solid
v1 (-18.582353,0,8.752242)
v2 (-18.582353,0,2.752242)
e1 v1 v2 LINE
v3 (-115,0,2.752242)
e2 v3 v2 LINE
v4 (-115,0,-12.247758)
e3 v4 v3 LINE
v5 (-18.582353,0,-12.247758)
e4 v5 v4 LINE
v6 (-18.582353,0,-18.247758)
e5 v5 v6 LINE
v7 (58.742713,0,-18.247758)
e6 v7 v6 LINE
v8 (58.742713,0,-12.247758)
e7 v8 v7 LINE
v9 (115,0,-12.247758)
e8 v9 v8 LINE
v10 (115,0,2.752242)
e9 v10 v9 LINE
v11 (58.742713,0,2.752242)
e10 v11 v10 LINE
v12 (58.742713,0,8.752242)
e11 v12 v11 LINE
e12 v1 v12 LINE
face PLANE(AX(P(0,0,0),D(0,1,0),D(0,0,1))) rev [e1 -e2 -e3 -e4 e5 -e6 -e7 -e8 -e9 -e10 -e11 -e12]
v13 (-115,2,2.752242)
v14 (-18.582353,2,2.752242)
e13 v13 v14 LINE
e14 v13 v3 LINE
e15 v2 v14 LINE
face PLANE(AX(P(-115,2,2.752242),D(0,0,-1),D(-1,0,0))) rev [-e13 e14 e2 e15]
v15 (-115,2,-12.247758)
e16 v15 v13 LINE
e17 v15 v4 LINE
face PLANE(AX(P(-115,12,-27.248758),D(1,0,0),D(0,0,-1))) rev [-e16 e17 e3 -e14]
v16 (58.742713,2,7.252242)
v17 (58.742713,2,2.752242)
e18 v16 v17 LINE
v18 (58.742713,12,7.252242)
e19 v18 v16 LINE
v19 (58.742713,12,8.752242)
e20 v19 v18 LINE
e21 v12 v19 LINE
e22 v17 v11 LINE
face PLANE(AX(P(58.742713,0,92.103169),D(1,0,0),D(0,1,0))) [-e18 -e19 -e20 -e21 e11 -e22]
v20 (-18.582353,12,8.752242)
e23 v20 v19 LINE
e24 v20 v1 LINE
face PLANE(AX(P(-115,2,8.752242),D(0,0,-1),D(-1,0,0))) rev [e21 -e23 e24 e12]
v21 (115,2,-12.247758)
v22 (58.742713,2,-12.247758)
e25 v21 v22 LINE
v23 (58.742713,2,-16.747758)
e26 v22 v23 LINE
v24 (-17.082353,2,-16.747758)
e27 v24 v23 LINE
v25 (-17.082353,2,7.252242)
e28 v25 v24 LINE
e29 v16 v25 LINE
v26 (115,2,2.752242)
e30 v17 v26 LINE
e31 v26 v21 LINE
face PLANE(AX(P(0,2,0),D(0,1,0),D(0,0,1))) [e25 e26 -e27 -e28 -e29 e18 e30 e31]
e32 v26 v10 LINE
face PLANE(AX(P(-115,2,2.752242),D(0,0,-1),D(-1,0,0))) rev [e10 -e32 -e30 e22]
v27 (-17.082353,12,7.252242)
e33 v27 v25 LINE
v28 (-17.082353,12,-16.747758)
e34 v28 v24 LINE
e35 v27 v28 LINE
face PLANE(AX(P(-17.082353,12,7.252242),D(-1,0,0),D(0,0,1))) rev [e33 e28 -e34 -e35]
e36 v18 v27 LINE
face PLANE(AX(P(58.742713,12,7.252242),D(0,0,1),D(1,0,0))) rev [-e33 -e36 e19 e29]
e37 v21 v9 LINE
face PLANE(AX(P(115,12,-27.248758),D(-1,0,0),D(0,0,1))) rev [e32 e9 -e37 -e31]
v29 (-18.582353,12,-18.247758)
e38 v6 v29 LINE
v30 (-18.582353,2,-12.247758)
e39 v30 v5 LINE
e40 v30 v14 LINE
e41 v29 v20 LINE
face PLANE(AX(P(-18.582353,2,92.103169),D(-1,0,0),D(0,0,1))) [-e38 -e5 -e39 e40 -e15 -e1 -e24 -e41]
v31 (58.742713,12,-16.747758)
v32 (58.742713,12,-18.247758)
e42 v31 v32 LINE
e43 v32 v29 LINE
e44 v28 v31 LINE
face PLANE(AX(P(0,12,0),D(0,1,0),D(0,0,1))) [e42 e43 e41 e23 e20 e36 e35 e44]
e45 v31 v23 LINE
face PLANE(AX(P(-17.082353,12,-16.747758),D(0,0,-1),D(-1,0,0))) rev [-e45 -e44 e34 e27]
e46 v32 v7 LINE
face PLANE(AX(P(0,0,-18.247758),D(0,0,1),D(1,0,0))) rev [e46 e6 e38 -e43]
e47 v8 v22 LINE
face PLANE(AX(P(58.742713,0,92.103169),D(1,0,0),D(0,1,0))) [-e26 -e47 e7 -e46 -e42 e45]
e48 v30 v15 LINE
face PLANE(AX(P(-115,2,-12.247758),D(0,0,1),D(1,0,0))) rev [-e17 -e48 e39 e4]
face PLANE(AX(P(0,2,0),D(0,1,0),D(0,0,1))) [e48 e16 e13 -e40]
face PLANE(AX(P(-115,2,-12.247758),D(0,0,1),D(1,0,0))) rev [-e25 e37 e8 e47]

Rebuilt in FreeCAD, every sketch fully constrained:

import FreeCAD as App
import Part
import Sketcher

V = App.Vector
Q = App.Units.Quantity

doc = App.newDocument("Part")
body = doc.addObject("PartDesign::Body", "Body")

# Sketch on XZ plane
sketch1 = body.newObject("Sketcher::SketchObject", "Sketch")
sketch1.AttachmentSupport = (doc.getObject("XZ_Plane"), [""])
sketch1.MapMode = "FlatFace"
sketch1.addGeometry([
    Part.LineSegment(V(-115, -12.247758, 0), V(-115, 2.752242, 0)),
    Part.LineSegment(V(-115, 2.752242, 0), V(115, 2.752242, 0)),
    Part.LineSegment(V(115, 2.752242, 0), V(115, -12.247758, 0)),
    Part.LineSegment(V(115, -12.247758, 0), V(-115, -12.247758, 0)),
], False)
sketch1.addConstraint([
    Sketcher.Constraint("Coincident", 0, 2, 1, 1),
    Sketcher.Constraint("Coincident", 1, 2, 2, 1),
    Sketcher.Constraint("Coincident", 2, 2, 3, 1),
    Sketcher.Constraint("Coincident", 3, 2, 0, 1),
    Sketcher.Constraint("Vertical", 0),
    Sketcher.Constraint("Horizontal", 1),
    Sketcher.Constraint("Vertical", 2),
    Sketcher.Constraint("Horizontal", 3),
    Sketcher.Constraint("DistanceX", 1, 1, 1, 2, Q("230 mm")),
    Sketcher.Constraint("DistanceY", 0, 1, 0, 2, Q("15 mm")),
    Sketcher.Constraint("DistanceX", 0, 2, -1, 1, Q("115 mm")),
    Sketcher.Constraint("DistanceY", -1, 1, 0, 2, Q("2.752242 mm")),
])
pad1 = body.newObject("PartDesign::Pad", "Pad")
pad1.Profile = sketch1
pad1.Length = 2
pad1.Reversed = True

# Sketch on YZ plane
sketch2 = body.newObject("Sketcher::SketchObject", "Sketch001")
sketch2.AttachmentSupport = (doc.getObject("YZ_Plane"), [""])
sketch2.MapMode = "FlatFace"
sketch2.AttachmentOffset = App.Placement(V(0, 0, 115), App.Rotation())
sketch2.addGeometry([
    Part.LineSegment(V(12, 17.752242, 0), V(-10, 17.752242, 0)),
    Part.LineSegment(V(-10, 17.752242, 0), V(-10, -27.247758, 0)),
    Part.LineSegment(V(-10, -27.247758, 0), V(12, -27.247758, 0)),
    Part.LineSegment(V(12, -27.247758, 0), V(12, 17.752242, 0)),
], False)
sketch2.addConstraint([
    Sketcher.Constraint("Coincident", 0, 2, 1, 1),
    Sketcher.Constraint("Coincident", 1, 2, 2, 1),
    Sketcher.Constraint("Coincident", 2, 2, 3, 1),
    Sketcher.Constraint("Coincident", 3, 2, 0, 1),
    Sketcher.Constraint("Horizontal", 0),
    Sketcher.Constraint("Vertical", 1),
    Sketcher.Constraint("Horizontal", 2),
    Sketcher.Constraint("Vertical", 3),
    Sketcher.Constraint("DistanceX", 0, 2, 0, 1, Q("22 mm")),
    Sketcher.Constraint("DistanceY", 1, 2, 1, 1, Q("45 mm")),
    Sketcher.Constraint("DistanceX", 0, 2, -1, 1, Q("10 mm")),
    Sketcher.Constraint("DistanceY", -1, 1, 0, 2, Q("17.752242 mm")),
])
pad2 = body.newObject("PartDesign::Pad", "Pad001")
pad2.Profile = sketch2
pad2.Length = 5

# Sketch on YZ plane
sketch3 = body.newObject("Sketcher::SketchObject", "Sketch002")
sketch3.AttachmentSupport = (doc.getObject("YZ_Plane"), [""])
sketch3.MapMode = "FlatFace"
sketch3.AttachmentOffset = App.Placement(V(0, 0, -115), App.Rotation())
sketch3.addGeometry([
    Part.LineSegment(V(12, -27.247758, 0), V(-10, -27.247758, 0)),
    Part.LineSegment(V(-10, -27.247758, 0), V(-10, 17.752242, 0)),
    Part.LineSegment(V(-10, 17.752242, 0), V(12, 17.752242, 0)),
    Part.LineSegment(V(12, 17.752242, 0), V(12, -27.247758, 0)),
], False)
sketch3.addConstraint([
    Sketcher.Constraint("Coincident", 0, 2, 1, 1),
    Sketcher.Constraint("Coincident", 1, 2, 2, 1),
    Sketcher.Constraint("Coincident", 2, 2, 3, 1),
    Sketcher.Constraint("Coincident", 3, 2, 0, 1),
    Sketcher.Constraint("Horizontal", 0),
    Sketcher.Constraint("Vertical", 1),
    Sketcher.Constraint("Horizontal", 2),
    Sketcher.Constraint("Vertical", 3),
    Sketcher.Constraint("DistanceX", 0, 2, 0, 1, Q("22 mm")),
    Sketcher.Constraint("DistanceY", 1, 1, 1, 2, Q("45 mm")),
    Sketcher.Constraint("DistanceX", 0, 2, -1, 1, Q("10 mm")),
    Sketcher.Constraint("DistanceY", 0, 2, -1, 1, Q("27.247758 mm")),
])
pad3 = body.newObject("PartDesign::Pad", "Pad002")
pad3.Profile = sketch3
pad3.Length = 5
pad3.Reversed = True

# Sketch on XY plane
sketch4 = body.newObject("Sketcher::SketchObject", "Sketch003")
sketch4.AttachmentSupport = (doc.getObject("XY_Plane"), [""])
sketch4.MapMode = "FlatFace"
sketch4.AttachmentOffset = App.Placement(V(0, 0, -12.247758), App.Rotation())
sketch4.addGeometry([
    Part.LineSegment(V(58.742713, 2, 0), V(58.742713, 0, 0)),
    Part.LineSegment(V(58.742713, 0, 0), V(-18.582353, 0, 0)),
    Part.LineSegment(V(-18.582353, 0, 0), V(-18.582353, 2, 0)),
    Part.LineSegment(V(-18.582353, 2, 0), V(58.742713, 2, 0)),
], False)
sketch4.addConstraint([
    Sketcher.Constraint("Coincident", 0, 2, 1, 1),
    Sketcher.Constraint("Coincident", 1, 2, 2, 1),
    Sketcher.Constraint("Coincident", 2, 2, 3, 1),
    Sketcher.Constraint("Coincident", 3, 2, 0, 1),
    Sketcher.Constraint("Vertical", 0),
    Sketcher.Constraint("Horizontal", 1),
    Sketcher.Constraint("Vertical", 2),
    Sketcher.Constraint("Horizontal", 3),
    Sketcher.Constraint("PointOnObject", 0, 2, -1),
    Sketcher.Constraint("DistanceY", 0, 2, 0, 1, Q("2 mm")),
    Sketcher.Constraint("DistanceX", 1, 2, 1, 1, Q("77.325066 mm")),
    Sketcher.Constraint("DistanceX", -1, 1, 0, 2, Q("58.742713 mm")),
])
pad4 = body.newObject("PartDesign::Pad", "Pad003")
pad4.Profile = sketch4
pad4.Type = "TwoLengths"
pad4.Length = 6
pad4.Length2 = 21
pad4.Reversed = True

# Sketch on XZ plane
sketch5 = body.newObject("Sketcher::SketchObject", "Sketch004")
sketch5.AttachmentSupport = (doc.getObject("XZ_Plane"), [""])
sketch5.MapMode = "FlatFace"
sketch5.AttachmentOffset = App.Placement(V(0, 0, -2), App.Rotation())
sketch5.addGeometry([
    Part.LineSegment(V(-18.582353, -18.247758, 0), V(-18.582353, 8.752242, 0)),  # 0
    Part.LineSegment(V(-18.582353, 8.752242, 0), V(58.742713, 8.752242, 0)),  # 1
    Part.LineSegment(V(58.742713, 8.752242, 0), V(58.742713, 7.252242, 0)),  # 2
    Part.LineSegment(V(58.742713, 7.252242, 0), V(-17.082353, 7.252242, 0)),  # 3
    Part.LineSegment(V(-17.082353, 7.252242, 0), V(-17.082353, -16.747758, 0)),  # 4
    Part.LineSegment(V(-17.082353, -16.747758, 0), V(58.742713, -16.747758, 0)),  # 5
    Part.LineSegment(V(58.742713, -16.747758, 0), V(58.742713, -18.247758, 0)),  # 6
    Part.LineSegment(V(58.742713, -18.247758, 0), V(-18.582353, -18.247758, 0)),  # 7
], False)
sketch5.addConstraint([
    Sketcher.Constraint("Coincident", 0, 2, 1, 1),
    Sketcher.Constraint("Coincident", 1, 2, 2, 1),
    Sketcher.Constraint("Coincident", 2, 2, 3, 1),
    Sketcher.Constraint("Coincident", 3, 2, 4, 1),
    Sketcher.Constraint("Coincident", 4, 2, 5, 1),
    Sketcher.Constraint("Coincident", 5, 2, 6, 1),
    Sketcher.Constraint("Coincident", 6, 2, 7, 1),
    Sketcher.Constraint("Coincident", 7, 2, 0, 1),
    Sketcher.Constraint("Vertical", 0),
    Sketcher.Constraint("Horizontal", 1),
    Sketcher.Constraint("Vertical", 2),
    Sketcher.Constraint("Horizontal", 3),
    Sketcher.Constraint("Vertical", 4),
    Sketcher.Constraint("Horizontal", 5),
    Sketcher.Constraint("Vertical", 6),
    Sketcher.Constraint("Horizontal", 7),
    Sketcher.Constraint("Vertical", 2, 2, 5, 2),
    Sketcher.Constraint("Equal", 2, 6),
    Sketcher.Constraint("DistanceY", 0, 1, 0, 2, Q("27 mm")),
    Sketcher.Constraint("DistanceY", 4, 2, 4, 1, Q("24 mm")),
    Sketcher.Constraint("DistanceX", 0, 2, 3, 2, Q("1.5 mm")),
    Sketcher.Constraint("DistanceX", 1, 1, 1, 2, Q("77.325066 mm")),
    Sketcher.Constraint("DistanceX", 0, 2, -1, 1, Q("18.582353 mm")),
    Sketcher.Constraint("DistanceY", -1, 1, 0, 2, Q("8.752242 mm")),
])
pad5 = body.newObject("PartDesign::Pad", "Pad004")
pad5.Profile = sketch5
pad5.Length = 10
pad5.Reversed = True

# Sketch on XY plane
sketch6 = body.newObject("Sketcher::SketchObject", "Sketch005")
sketch6.AttachmentSupport = (doc.getObject("XY_Plane"), [""])
sketch6.MapMode = "FlatFace"
sketch6.AttachmentOffset = App.Placement(V(0, 0, 17.752242), App.Rotation())
sketch6.addGeometry([
    Part.LineSegment(V(-120, 12, 0), V(-120, -10, 0)),
    Part.LineSegment(V(-120, -10, 0), V(-115, -10, 0)),
    Part.LineSegment(V(-115, -10, 0), V(-115, 12, 0)),
    Part.LineSegment(V(-115, 12, 0), V(-120, 12, 0)),
], False)
sketch6.addConstraint([
    Sketcher.Constraint("Coincident", 0, 2, 1, 1),
    Sketcher.Constraint("Coincident", 1, 2, 2, 1),
    Sketcher.Constraint("Coincident", 2, 2, 3, 1),
    Sketcher.Constraint("Coincident", 3, 2, 0, 1),
    Sketcher.Constraint("Vertical", 0),
    Sketcher.Constraint("Horizontal", 1),
    Sketcher.Constraint("Vertical", 2),
    Sketcher.Constraint("Horizontal", 3),
    Sketcher.Constraint("DistanceX", 1, 1, 1, 2, Q("5 mm")),
    Sketcher.Constraint("DistanceY", 0, 2, 0, 1, Q("22 mm")),
    Sketcher.Constraint("DistanceX", 0, 2, -1, 1, Q("120 mm")),
    Sketcher.Constraint("DistanceY", 0, 2, -1, 1, Q("10 mm")),
])
pocket1 = body.newObject("PartDesign::Pocket", "Pocket")
pocket1.Profile = sketch6
pocket1.Type = "UpToFirst"

# Sketch on XY plane
sketch7 = body.newObject("Sketcher::SketchObject", "Sketch006")
sketch7.AttachmentSupport = (doc.getObject("XY_Plane"), [""])
sketch7.MapMode = "FlatFace"
sketch7.AttachmentOffset = App.Placement(V(0, 0, 17.752242), App.Rotation())
sketch7.addGeometry([
    Part.LineSegment(V(115, 12, 0), V(115, -10, 0)),
    Part.LineSegment(V(115, -10, 0), V(120, -10, 0)),
    Part.LineSegment(V(120, -10, 0), V(120, 12, 0)),
    Part.LineSegment(V(120, 12, 0), V(115, 12, 0)),
], False)
sketch7.addConstraint([
    Sketcher.Constraint("Coincident", 0, 2, 1, 1),
    Sketcher.Constraint("Coincident", 1, 2, 2, 1),
    Sketcher.Constraint("Coincident", 2, 2, 3, 1),
    Sketcher.Constraint("Coincident", 3, 2, 0, 1),
    Sketcher.Constraint("Vertical", 0),
    Sketcher.Constraint("Horizontal", 1),
    Sketcher.Constraint("Vertical", 2),
    Sketcher.Constraint("Horizontal", 3),
    Sketcher.Constraint("DistanceX", 1, 1, 1, 2, Q("5 mm")),
    Sketcher.Constraint("DistanceY", 0, 2, 0, 1, Q("22 mm")),
    Sketcher.Constraint("DistanceX", -1, 1, 0, 2, Q("115 mm")),
    Sketcher.Constraint("DistanceY", 0, 2, -1, 1, Q("10 mm")),
])
pocket2 = body.newObject("PartDesign::Pocket", "Pocket001")
pocket2.Profile = sketch7
pocket2.Type = "UpToFirst"

doc.recompute()
